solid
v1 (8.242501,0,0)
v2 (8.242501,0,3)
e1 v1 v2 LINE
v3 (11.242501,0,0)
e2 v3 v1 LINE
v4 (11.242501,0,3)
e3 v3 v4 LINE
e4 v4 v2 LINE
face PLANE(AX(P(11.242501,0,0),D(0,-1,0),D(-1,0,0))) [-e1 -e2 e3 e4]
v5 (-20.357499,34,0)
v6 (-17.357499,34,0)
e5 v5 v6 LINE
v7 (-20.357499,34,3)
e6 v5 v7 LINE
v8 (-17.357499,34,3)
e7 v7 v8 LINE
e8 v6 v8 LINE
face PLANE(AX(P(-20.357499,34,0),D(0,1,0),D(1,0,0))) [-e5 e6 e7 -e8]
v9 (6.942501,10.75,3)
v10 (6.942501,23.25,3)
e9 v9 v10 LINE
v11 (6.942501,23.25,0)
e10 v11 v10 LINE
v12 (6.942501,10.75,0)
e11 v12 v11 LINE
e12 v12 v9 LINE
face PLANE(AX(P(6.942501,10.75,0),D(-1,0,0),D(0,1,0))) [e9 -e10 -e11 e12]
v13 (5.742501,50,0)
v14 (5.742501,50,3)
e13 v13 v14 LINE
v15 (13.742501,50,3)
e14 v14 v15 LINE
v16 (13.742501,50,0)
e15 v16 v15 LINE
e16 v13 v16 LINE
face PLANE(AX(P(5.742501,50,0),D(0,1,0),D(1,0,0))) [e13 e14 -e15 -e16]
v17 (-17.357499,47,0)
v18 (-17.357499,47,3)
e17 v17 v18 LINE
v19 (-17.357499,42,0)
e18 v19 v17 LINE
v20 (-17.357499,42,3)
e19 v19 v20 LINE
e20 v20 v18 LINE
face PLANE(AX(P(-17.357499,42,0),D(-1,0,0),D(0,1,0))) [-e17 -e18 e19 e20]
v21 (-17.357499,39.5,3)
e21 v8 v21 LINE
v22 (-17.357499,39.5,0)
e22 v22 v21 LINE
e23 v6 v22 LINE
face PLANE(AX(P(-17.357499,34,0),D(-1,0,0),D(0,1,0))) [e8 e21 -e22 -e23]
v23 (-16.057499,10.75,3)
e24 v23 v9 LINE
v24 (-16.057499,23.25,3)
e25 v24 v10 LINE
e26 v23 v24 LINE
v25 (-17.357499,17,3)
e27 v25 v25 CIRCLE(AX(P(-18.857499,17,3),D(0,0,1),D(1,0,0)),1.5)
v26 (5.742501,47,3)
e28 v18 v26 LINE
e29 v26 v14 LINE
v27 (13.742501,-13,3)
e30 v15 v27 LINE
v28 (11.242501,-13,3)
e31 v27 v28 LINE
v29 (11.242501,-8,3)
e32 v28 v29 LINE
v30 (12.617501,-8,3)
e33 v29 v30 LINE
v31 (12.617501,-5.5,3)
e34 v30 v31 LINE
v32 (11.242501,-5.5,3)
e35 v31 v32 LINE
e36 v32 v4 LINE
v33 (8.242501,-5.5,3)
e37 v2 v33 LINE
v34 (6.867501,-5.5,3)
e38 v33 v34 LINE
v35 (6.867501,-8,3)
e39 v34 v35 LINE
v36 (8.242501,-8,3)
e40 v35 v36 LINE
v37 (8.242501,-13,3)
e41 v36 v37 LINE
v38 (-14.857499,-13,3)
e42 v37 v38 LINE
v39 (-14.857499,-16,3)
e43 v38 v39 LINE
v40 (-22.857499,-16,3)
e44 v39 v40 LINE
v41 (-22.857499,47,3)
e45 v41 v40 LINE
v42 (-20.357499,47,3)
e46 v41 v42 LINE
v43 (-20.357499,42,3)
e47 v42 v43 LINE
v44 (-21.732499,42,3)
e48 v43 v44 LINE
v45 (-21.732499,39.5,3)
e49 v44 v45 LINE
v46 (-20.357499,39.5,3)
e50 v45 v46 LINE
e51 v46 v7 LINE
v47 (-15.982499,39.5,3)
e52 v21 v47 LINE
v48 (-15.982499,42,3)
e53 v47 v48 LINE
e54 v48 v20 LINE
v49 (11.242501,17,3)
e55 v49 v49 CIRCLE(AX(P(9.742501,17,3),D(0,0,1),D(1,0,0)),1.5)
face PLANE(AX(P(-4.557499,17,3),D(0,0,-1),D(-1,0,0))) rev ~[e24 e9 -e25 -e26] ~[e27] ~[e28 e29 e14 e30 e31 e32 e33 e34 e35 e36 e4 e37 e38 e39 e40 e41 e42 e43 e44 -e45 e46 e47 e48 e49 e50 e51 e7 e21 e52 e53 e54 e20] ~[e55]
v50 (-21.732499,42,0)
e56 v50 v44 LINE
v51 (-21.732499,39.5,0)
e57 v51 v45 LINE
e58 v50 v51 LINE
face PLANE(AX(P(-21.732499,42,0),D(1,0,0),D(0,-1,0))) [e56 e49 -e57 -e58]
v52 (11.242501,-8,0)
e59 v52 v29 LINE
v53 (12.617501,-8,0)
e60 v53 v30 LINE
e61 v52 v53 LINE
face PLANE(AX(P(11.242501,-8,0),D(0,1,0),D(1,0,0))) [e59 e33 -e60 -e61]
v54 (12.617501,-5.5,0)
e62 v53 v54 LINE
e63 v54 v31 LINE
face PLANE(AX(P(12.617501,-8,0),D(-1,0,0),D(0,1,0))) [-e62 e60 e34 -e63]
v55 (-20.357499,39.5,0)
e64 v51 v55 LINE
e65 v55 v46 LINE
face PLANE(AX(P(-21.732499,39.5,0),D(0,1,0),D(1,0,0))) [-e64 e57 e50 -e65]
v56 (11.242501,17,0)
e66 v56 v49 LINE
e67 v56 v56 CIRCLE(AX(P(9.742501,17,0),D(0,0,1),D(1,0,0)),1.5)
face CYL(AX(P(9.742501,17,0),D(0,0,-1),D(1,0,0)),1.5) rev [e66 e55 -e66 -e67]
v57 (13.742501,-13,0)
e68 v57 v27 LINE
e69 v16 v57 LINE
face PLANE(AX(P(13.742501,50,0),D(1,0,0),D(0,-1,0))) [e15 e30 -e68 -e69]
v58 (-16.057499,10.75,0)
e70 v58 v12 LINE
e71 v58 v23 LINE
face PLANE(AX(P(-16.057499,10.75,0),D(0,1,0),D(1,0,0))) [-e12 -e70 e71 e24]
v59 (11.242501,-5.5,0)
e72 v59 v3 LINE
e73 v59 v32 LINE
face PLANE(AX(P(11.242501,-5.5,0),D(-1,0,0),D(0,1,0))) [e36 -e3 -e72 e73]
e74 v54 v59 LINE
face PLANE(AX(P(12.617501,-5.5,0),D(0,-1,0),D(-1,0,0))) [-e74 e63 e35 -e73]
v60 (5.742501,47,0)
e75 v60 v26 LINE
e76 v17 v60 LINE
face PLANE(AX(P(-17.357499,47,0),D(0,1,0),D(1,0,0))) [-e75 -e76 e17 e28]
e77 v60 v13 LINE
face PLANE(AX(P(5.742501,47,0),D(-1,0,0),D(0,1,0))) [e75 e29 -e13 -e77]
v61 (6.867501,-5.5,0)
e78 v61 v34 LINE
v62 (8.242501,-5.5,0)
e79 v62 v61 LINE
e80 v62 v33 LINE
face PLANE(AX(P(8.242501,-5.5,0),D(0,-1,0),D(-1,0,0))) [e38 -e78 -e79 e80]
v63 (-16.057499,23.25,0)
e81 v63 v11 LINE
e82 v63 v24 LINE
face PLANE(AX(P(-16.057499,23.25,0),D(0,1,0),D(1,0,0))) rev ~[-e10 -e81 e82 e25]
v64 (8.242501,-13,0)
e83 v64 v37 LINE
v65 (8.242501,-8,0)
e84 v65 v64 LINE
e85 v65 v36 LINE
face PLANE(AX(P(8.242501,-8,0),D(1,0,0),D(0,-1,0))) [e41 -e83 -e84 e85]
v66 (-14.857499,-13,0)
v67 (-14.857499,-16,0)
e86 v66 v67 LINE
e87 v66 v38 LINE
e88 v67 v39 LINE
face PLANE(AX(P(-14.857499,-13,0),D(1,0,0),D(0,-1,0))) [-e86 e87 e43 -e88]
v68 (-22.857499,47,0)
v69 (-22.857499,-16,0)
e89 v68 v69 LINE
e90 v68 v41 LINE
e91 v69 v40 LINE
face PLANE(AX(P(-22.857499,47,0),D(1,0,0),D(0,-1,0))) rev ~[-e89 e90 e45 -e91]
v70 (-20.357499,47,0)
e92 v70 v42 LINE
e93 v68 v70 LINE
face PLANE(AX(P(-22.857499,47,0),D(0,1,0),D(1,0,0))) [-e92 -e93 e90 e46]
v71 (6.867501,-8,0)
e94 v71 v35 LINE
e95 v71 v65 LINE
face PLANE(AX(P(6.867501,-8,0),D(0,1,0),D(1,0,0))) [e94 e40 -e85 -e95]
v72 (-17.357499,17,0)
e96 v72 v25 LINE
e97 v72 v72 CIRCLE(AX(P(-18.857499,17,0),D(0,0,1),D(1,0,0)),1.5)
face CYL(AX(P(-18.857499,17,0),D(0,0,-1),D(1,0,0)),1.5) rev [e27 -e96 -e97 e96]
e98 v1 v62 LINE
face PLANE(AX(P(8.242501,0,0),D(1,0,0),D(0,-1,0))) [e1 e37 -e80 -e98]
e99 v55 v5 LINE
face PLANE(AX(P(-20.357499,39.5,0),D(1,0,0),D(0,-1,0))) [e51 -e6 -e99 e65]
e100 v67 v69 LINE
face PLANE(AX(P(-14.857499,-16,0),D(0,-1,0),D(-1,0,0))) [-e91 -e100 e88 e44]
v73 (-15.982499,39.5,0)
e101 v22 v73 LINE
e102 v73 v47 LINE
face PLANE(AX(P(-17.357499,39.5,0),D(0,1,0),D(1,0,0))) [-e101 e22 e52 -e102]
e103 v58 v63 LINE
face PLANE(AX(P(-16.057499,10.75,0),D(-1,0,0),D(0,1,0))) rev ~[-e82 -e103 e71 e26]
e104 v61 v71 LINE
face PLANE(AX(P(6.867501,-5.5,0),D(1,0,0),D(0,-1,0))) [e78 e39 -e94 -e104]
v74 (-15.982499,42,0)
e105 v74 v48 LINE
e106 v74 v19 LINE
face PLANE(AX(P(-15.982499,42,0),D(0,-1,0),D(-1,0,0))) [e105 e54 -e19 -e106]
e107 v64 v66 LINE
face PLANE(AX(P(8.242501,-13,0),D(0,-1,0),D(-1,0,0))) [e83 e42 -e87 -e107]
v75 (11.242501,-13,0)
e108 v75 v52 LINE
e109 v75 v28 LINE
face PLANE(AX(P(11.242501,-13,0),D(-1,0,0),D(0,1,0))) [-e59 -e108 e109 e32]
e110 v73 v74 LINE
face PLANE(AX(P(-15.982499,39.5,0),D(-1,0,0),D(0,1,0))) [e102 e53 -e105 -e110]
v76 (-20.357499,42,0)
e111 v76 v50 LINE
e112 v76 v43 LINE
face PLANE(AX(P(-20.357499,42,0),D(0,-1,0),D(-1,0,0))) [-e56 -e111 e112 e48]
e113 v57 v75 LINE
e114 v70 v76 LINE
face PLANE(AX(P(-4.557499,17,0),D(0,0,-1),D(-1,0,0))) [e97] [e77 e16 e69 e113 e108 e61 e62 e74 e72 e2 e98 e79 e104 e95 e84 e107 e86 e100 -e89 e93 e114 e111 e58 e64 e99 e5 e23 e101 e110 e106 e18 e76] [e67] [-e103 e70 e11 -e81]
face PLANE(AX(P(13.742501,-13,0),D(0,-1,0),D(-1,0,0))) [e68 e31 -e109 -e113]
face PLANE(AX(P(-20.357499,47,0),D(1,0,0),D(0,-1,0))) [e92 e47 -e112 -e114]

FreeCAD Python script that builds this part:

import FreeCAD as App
import Part
import Sketcher
from FreeCAD import Vector
Q = App.Units.Quantity


def add_polygon(sketch, points):
    """Adds a closed chain of lines whose ends are joined by coincident constraints."""
    first, n = sketch.GeometryCount, len(points)
    for a, b in zip(points, points[1:] + points[:1]):
        sketch.addGeometry(Part.LineSegment(App.Vector(*a, 0), App.Vector(*b, 0)), False)
    for i in range(n):
        sketch.addConstraint(Sketcher.Constraint("Coincident", first + i, 2, first + (i + 1) % n, 1))

doc = App.newDocument("Part")
body = doc.addObject("PartDesign::Body", "Body")

# Sketch on XY plane
sketch1 = body.newObject("Sketcher::SketchObject", "Sketch")
sketch1.AttachmentSupport = (doc.getObject("XY_Plane"), [""])
sketch1.MapMode = "FlatFace"
add_polygon(sketch1, [(11.2, -8), (11.2, -13), (13.7, -13), (13.7, 50), (5.7, 50), (5.7, 47), (-17.4, 47), (-17.4, 42), (-16, 42), (-16, 39.5), (-17.4, 39.5), (-17.4, 34), (-20.4, 34), (-20.4, 39.5), (-21.7, 39.5), (-21.7, 42), (-20.4, 42), (-20.4, 47), (-22.9, 47), (-22.9, -16), (-14.9, -16), (-14.9, -13), (8.2, -13), (8.2, -8), (6.9, -8), (6.9, -5.5), (8.2, -5.5), (8.2, 0), (11.2, 0), (11.2, -5.5), (12.6, -5.5), (12.6, -8)])  # lines 0-31
sketch1.addGeometry(Part.Circle(Vector(9.7, 17, 0), Vector(0, 0, 1), 1.5), False)  # 32
add_polygon(sketch1, [(-16.1, 10.8), (-16.1, 23.2), (6.9, 23.2), (6.9, 10.8)])  # lines 33-36
sketch1.addGeometry(Part.Circle(Vector(-18.9, 17, 0), Vector(0, 0, 1), 1.5), False)  # 37
sketch1.addConstraint([
    Sketcher.Constraint("Vertical", 0),
    Sketcher.Constraint("Horizontal", 1),
    Sketcher.Constraint("Vertical", 2),
    Sketcher.Constraint("Horizontal", 3),
    Sketcher.Constraint("Vertical", 4),
    Sketcher.Constraint("Horizontal", 5),
    Sketcher.Constraint("Vertical", 6),
    Sketcher.Constraint("Horizontal", 7),
    Sketcher.Constraint("Vertical", 8),
    Sketcher.Constraint("Horizontal", 9),
    Sketcher.Constraint("Vertical", 10),
    Sketcher.Constraint("Horizontal", 11),
    Sketcher.Constraint("Vertical", 12),
    Sketcher.Constraint("Horizontal", 13),
    Sketcher.Constraint("Vertical", 14),
    Sketcher.Constraint("Horizontal", 15),
    Sketcher.Constraint("Vertical", 16),
    Sketcher.Constraint("Horizontal", 17),
    Sketcher.Constraint("Vertical", 18),
    Sketcher.Constraint("Horizontal", 19),
    Sketcher.Constraint("Vertical", 20),
    Sketcher.Constraint("Horizontal", 21),
    Sketcher.Constraint("Vertical", 22),
    Sketcher.Constraint("Horizontal", 23),
    Sketcher.Constraint("Vertical", 24),
    Sketcher.Constraint("Horizontal", 25),
    Sketcher.Constraint("Vertical", 26),
    Sketcher.Constraint("Horizontal", 27),
    Sketcher.Constraint("Vertical", 28),
    Sketcher.Constraint("Horizontal", 29),
    Sketcher.Constraint("Vertical", 30),
    Sketcher.Constraint("Horizontal", 31),
    Sketcher.Constraint("Vertical", 33),
    Sketcher.Constraint("Horizontal", 34),
    Sketcher.Constraint("Vertical", 35),
    Sketcher.Constraint("Horizontal", 36),
    Sketcher.Constraint("Equal", 32, 37),
    Sketcher.Constraint("PointOnObject", 26, 2, -1),
    Sketcher.Constraint("Horizontal", 32, 3, 37, 3),
    Sketcher.Constraint("Horizontal", 9, 2, 12, 2),
    Sketcher.Constraint("Horizontal", 7, 2, 14, 2),
    Sketcher.Constraint("Horizontal", 5, 2, 16, 2),
    Sketcher.Constraint("Horizontal", 1, 2, 20, 2),
    Sketcher.Constraint("Horizontal", 25, 2, 28, 2),
    Sketcher.Constraint("Horizontal", 23, 2, 30, 2),
    Sketcher.Constraint("Vertical", 6, 2, 9, 2),
    Sketcher.Constraint("Vertical", 12, 2, 15, 2),
    Sketcher.Constraint("Vertical", 22, 2, 25, 2),
    Sketcher.Constraint("Vertical", 0, 2, 27, 2),
    Sketcher.Constraint("Equal", 9, 13),
    Sketcher.Constraint("Equal", 1, 17),
    Sketcher.Constraint("Equal", 3, 19),
    Sketcher.Constraint("Equal", 5, 21),
    Sketcher.Constraint("Equal", 15, 23),
    Sketcher.Constraint("Equal", 25, 29),
    Sketcher.Constraint("Equal", 27, 4),
    Sketcher.Constraint("Equal", 0, 6),
    Sketcher.Constraint("Equal", 17, 8),
    Sketcher.Constraint("Equal", 2, 18),
    Sketcher.Constraint("Equal", 14, 24),
    Sketcher.Constraint("Equal", 12, 26),
    Sketcher.Constraint("Diameter", 32, Q("3 mm")),
    Sketcher.Constraint("DistanceX", 3, 2, 3, 1, Q("8 mm")),
    Sketcher.Constraint("DistanceX", 11, 2, 11, 1, Q("3 mm")),
    Sketcher.Constraint("DistanceX", 34, 1, 34, 2, Q("23 mm")),
    Sketcher.Constraint("DistanceY", 0, 2, 0, 1, Q("5 mm")),
    Sketcher.Constraint("DistanceY", 2, 1, 2, 2, Q("63 mm")),
    Sketcher.Constraint("DistanceX", 1, 1, 1, 2, Q("2.5 mm")),
    Sketcher.Constraint("DistanceX", 5, 2, 5, 1, Q("23.1 mm")),
    Sketcher.Constraint("DistanceY", 10, 2, 10, 1, Q("5.5 mm")),
    Sketcher.Constraint("DistanceY", 33, 1, 33, 2, Q("12.5 mm")),
    Sketcher.Constraint("DistanceY", -1, 1, 32, 3, Q("17 mm")),
    Sketcher.Constraint("DistanceX", 32, 3, 1, 2, Q("4 mm")),
    Sketcher.Constraint("DistanceX", 18, 2, 37, 3, Q("4 mm")),
    Sketcher.Constraint("DistanceX", 37, 3, 33, 2, Q("2.8 mm")),
    Sketcher.Constraint("DistanceX", 7, 1, 7, 2, Q("1.375 mm")),
    Sketcher.Constraint("DistanceY", -1, 1, 33, 2, Q("23.25 mm")),
    Sketcher.Constraint("DistanceX", -1, 1, 32, 3, Q("9.742501 mm")),
])
pad1 = body.newObject("PartDesign::Pad", "Pad")
pad1.Profile = sketch1
pad1.Length = 3

doc.recompute()
